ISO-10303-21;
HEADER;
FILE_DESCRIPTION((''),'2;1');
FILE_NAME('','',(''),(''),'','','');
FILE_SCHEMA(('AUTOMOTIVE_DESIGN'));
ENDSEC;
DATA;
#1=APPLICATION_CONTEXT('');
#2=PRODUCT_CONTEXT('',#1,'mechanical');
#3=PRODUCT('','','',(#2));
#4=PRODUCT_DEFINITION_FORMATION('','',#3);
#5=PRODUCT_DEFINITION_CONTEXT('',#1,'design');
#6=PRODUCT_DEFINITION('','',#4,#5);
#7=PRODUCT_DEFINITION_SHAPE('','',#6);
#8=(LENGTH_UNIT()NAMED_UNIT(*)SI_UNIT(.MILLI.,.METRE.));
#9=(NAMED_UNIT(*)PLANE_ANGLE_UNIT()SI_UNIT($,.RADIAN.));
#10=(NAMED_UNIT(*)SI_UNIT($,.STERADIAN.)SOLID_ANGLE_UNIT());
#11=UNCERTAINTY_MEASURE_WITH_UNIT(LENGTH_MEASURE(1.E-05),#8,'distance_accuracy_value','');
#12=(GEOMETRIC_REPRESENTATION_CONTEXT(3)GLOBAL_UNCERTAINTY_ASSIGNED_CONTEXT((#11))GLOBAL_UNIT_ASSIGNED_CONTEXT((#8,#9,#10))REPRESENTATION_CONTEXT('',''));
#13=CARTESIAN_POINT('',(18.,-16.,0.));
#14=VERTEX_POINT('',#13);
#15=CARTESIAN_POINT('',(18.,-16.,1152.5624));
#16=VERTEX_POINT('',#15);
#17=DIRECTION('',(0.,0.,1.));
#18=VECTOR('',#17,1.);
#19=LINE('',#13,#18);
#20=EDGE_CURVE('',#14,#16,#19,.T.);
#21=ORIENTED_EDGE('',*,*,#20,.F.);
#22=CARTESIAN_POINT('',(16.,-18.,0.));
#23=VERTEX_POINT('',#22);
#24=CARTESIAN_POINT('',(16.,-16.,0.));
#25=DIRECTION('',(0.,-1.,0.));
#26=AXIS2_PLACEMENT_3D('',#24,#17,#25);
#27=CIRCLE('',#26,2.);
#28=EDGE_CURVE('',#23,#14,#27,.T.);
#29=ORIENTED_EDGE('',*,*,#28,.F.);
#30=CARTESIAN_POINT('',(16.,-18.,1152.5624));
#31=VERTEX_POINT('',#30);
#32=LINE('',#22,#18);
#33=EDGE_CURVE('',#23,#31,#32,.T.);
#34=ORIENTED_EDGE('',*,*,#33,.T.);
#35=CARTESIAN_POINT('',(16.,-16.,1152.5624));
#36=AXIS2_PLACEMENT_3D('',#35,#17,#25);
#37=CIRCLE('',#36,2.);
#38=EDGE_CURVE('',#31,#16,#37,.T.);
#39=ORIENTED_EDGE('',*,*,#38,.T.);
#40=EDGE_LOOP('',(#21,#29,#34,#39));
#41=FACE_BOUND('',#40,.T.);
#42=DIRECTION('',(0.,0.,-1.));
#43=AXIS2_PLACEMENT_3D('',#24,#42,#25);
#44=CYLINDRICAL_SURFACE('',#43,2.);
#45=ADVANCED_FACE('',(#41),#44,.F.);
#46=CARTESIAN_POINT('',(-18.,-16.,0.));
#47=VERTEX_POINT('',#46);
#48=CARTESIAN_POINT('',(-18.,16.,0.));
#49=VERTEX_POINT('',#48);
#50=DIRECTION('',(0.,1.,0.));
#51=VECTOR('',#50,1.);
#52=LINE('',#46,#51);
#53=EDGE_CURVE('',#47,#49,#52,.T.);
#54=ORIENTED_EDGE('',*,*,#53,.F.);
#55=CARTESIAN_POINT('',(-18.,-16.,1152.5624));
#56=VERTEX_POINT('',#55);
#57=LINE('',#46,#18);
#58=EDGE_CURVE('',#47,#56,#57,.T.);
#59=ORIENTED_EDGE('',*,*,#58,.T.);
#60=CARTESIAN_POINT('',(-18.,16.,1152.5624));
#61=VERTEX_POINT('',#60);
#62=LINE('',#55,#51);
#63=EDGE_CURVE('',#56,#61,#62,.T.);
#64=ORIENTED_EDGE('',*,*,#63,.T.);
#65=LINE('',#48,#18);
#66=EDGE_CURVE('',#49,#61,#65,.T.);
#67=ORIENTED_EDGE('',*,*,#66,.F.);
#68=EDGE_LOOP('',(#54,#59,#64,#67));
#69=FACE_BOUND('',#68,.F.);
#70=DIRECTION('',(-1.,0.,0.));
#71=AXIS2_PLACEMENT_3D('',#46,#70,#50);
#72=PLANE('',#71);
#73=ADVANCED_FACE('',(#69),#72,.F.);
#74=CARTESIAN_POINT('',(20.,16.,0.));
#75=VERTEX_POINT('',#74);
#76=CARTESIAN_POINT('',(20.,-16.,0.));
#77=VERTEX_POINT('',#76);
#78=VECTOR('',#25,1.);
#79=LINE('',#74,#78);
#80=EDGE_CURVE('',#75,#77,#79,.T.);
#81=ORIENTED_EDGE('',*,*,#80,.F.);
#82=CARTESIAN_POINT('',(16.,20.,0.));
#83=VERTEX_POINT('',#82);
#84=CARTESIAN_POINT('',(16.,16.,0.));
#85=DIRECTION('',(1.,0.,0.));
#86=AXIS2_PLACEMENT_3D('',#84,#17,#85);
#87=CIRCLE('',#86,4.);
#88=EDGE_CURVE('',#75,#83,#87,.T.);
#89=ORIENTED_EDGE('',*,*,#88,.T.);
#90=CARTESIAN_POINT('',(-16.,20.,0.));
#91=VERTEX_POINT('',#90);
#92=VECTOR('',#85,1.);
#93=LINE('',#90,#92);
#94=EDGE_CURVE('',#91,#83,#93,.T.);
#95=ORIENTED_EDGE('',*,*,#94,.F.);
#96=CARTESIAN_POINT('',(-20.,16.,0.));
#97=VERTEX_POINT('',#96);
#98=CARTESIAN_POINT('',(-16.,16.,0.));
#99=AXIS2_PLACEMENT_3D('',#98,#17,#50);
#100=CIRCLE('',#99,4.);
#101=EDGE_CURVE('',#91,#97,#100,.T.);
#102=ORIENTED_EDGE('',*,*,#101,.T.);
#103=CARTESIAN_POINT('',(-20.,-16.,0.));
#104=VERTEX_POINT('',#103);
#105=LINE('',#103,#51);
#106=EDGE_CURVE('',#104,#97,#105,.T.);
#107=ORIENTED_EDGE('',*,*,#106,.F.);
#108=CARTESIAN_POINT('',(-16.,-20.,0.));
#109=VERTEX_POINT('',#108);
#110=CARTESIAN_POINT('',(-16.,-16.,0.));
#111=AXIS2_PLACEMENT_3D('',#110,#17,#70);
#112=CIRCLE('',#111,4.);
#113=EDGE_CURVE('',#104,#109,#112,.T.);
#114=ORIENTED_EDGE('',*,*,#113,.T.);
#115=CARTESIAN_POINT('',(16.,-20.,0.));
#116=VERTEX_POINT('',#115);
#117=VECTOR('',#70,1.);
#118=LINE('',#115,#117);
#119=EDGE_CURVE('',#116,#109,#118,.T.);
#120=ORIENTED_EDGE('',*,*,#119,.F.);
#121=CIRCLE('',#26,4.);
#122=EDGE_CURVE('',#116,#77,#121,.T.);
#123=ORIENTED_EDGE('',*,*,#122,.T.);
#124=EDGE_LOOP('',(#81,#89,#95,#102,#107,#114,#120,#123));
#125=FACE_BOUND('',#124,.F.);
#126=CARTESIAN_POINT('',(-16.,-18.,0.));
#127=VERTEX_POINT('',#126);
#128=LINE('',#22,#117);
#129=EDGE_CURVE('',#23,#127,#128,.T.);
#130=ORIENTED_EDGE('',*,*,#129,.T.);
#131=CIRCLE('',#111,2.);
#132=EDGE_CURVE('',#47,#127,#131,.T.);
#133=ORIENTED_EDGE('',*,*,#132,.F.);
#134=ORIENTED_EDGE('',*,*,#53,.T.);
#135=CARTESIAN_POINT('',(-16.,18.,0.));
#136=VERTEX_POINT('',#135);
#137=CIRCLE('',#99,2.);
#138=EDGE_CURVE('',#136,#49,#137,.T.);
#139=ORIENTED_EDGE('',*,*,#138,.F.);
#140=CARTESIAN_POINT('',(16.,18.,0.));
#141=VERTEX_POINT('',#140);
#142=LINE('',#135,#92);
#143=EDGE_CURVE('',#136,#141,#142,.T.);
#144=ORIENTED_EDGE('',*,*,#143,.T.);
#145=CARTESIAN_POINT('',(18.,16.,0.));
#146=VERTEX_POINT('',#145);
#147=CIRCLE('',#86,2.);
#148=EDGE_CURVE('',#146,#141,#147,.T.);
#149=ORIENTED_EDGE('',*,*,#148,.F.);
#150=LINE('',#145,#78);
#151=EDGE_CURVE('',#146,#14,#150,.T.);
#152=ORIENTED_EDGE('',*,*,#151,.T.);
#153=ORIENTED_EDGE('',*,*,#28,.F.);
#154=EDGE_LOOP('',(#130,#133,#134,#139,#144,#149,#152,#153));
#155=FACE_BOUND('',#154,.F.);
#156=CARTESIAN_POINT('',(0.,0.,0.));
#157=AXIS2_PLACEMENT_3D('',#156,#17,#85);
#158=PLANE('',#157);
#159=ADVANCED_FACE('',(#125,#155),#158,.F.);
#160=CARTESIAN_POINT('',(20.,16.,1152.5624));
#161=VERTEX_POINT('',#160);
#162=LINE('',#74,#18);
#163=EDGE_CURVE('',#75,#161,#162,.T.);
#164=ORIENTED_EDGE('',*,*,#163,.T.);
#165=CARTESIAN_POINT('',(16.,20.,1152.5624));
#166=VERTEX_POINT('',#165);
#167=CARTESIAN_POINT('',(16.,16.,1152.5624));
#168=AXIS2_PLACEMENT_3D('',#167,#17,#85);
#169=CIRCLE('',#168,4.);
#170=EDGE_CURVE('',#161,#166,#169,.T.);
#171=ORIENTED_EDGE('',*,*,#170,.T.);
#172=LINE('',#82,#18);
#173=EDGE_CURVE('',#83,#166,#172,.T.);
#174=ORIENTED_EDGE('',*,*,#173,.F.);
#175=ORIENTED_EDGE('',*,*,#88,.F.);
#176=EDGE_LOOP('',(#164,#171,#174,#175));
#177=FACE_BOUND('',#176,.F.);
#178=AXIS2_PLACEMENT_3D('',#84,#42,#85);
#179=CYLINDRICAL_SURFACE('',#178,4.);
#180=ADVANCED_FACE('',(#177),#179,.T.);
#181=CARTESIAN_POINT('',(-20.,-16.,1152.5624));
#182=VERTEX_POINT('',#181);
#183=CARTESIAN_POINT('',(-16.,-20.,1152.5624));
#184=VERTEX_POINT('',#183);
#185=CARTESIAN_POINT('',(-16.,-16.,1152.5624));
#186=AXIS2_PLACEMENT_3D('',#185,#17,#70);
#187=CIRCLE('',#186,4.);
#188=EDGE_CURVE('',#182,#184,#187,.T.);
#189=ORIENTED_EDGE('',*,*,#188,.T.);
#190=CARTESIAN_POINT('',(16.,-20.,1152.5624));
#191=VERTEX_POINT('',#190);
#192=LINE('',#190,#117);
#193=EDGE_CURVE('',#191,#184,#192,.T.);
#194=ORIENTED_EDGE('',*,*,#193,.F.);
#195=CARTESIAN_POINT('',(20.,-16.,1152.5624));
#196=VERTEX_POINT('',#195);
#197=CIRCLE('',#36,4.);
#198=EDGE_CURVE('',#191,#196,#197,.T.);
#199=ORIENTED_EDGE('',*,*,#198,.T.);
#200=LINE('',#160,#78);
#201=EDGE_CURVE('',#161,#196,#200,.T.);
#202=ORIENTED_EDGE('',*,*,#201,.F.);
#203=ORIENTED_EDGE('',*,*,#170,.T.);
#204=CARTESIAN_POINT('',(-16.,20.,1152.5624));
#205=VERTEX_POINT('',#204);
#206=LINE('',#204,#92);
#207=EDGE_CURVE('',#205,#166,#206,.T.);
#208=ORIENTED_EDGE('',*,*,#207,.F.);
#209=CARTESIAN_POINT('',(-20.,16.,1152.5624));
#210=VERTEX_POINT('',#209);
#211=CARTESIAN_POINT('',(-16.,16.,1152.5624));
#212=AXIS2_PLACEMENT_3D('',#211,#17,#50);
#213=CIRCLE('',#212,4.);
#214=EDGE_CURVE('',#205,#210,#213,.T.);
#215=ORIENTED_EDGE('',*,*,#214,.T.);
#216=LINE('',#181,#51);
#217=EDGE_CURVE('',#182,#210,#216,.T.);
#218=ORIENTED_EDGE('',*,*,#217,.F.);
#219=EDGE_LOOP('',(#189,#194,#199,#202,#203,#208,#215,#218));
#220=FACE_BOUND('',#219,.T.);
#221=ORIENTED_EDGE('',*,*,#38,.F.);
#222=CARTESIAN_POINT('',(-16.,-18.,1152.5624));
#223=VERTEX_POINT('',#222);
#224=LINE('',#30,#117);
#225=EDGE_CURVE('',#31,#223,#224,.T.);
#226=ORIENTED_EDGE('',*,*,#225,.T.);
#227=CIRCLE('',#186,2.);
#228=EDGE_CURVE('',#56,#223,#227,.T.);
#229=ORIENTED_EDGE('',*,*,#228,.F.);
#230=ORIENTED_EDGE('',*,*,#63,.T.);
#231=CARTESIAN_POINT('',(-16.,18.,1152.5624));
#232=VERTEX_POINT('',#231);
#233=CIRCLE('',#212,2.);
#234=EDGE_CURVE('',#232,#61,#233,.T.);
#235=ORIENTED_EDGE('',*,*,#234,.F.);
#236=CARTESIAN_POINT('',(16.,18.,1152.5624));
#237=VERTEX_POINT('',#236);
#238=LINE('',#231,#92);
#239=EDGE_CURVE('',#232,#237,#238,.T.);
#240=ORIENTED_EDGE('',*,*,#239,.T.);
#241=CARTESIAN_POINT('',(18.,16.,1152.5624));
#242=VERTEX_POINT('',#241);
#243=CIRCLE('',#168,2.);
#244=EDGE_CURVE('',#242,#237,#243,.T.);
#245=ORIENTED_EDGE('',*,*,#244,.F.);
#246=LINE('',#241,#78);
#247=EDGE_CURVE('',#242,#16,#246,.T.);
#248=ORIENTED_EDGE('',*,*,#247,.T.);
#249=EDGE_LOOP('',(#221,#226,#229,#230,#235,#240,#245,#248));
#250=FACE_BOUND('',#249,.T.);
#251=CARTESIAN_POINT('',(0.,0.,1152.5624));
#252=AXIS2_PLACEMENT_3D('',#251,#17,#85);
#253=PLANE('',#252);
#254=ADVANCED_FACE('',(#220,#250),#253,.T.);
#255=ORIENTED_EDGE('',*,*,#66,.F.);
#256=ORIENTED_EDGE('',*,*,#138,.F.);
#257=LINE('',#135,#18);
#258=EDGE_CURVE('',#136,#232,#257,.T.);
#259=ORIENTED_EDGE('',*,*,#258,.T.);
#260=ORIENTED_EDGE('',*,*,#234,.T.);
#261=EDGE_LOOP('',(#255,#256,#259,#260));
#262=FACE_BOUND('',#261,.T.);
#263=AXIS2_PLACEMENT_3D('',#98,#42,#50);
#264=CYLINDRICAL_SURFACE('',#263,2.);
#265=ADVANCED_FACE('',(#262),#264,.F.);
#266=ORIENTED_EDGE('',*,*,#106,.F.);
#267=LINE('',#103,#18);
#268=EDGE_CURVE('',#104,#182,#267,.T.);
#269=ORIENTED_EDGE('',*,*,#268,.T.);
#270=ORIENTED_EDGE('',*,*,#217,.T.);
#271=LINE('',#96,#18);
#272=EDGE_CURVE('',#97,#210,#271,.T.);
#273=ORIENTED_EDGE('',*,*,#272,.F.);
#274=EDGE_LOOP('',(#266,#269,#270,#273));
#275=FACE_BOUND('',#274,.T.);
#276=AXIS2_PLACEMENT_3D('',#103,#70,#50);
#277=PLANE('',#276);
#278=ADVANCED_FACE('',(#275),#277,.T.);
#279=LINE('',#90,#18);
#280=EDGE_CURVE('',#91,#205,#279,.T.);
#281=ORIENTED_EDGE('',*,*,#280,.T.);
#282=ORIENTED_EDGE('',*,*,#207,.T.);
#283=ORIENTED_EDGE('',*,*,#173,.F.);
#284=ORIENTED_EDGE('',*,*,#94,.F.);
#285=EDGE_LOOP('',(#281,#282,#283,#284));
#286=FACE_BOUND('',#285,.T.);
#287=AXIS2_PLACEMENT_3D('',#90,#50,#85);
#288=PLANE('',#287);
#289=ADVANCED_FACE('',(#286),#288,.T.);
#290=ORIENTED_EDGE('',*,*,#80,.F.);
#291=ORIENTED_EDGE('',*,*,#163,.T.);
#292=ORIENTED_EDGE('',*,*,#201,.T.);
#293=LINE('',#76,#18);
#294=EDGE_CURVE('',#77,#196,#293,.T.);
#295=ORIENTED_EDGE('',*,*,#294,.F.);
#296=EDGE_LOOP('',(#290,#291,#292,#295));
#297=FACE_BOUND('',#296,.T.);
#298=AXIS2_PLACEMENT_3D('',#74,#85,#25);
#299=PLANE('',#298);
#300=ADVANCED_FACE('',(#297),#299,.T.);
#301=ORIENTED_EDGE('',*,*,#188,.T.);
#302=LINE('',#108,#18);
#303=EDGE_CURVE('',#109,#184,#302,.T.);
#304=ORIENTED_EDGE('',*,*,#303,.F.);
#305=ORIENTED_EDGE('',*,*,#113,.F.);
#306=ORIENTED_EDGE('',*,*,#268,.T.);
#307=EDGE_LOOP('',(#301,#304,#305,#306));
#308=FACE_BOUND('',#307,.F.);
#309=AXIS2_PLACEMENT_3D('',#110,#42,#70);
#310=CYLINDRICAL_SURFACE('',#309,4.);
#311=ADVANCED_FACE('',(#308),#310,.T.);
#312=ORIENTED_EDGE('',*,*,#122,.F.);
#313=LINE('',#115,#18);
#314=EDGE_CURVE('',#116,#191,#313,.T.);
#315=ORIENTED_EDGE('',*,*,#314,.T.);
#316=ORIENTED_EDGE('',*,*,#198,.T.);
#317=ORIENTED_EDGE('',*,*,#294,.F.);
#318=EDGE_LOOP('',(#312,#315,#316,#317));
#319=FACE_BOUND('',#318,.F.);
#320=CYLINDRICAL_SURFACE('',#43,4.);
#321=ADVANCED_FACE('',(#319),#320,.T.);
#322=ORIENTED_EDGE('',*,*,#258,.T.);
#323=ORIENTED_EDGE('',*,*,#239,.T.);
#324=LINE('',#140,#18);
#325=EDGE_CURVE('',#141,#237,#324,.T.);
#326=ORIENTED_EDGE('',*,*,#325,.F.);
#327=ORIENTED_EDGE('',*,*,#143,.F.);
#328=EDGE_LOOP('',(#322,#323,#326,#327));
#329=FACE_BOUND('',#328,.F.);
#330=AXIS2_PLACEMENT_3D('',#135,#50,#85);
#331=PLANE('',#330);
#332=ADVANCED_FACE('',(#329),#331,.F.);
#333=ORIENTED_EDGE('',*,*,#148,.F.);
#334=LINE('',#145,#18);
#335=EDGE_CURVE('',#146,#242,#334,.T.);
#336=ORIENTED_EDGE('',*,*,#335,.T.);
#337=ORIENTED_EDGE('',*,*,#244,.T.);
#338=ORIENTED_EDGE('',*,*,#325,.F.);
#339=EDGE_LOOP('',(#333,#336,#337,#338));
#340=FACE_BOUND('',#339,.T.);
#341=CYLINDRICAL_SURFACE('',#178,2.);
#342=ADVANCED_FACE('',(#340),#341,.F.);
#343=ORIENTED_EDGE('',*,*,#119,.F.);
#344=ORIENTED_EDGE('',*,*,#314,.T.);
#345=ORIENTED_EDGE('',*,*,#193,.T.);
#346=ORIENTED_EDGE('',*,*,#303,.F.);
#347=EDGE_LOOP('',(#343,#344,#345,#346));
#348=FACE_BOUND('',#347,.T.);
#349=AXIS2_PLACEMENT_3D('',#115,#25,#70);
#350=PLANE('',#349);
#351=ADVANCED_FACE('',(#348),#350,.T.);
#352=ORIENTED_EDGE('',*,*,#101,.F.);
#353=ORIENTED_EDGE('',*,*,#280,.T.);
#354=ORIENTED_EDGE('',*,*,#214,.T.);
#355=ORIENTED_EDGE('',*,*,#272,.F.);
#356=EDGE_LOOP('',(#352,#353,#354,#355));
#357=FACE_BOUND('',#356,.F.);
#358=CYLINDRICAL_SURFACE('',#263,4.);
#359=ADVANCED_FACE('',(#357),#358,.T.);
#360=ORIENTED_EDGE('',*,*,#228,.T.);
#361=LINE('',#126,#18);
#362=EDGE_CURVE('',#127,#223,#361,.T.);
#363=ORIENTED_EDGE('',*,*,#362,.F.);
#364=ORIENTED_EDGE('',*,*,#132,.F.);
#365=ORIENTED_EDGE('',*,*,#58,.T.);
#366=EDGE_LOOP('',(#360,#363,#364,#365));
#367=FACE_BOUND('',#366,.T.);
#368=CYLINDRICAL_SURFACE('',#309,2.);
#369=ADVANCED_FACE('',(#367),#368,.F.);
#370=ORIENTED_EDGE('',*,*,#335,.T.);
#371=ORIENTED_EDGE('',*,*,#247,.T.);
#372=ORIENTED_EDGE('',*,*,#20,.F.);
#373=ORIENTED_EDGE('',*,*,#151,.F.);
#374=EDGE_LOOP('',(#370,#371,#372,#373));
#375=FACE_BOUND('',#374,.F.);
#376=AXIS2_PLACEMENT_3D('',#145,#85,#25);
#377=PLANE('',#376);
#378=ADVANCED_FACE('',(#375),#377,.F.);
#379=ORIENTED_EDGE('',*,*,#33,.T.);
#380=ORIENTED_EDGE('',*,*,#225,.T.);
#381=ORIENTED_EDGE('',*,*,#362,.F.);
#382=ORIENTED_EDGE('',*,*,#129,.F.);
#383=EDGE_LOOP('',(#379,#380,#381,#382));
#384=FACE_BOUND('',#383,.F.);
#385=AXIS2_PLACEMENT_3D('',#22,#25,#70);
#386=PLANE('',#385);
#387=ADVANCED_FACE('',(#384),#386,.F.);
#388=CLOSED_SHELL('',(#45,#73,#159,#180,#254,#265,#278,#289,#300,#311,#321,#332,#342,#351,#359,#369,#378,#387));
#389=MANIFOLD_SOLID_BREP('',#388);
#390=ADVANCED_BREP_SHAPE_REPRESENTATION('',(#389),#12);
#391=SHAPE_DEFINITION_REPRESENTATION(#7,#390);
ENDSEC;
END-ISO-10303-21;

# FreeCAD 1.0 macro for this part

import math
import FreeCAD as App
import Part
import Sketcher

doc = App.newDocument("Part")
body = doc.addObject("PartDesign::Body", "Body")

sketch1 = doc.addObject("Sketcher::SketchObject", "Sketch")
body.addObject(sketch1)
sketch1.AttachmentSupport = (doc.XY_Plane, [""])
sketch1.MapMode = "FlatFace"
sketch1.addGeometry([
    Part.LineSegment(App.Vector(-20, 16, 0), App.Vector(-20, -16, 0)),
    Part.ArcOfCircle(Part.Circle(App.Vector(-16, -16, 0), App.Vector(0, 0, 1), 4), math.radians(180), math.radians(270)),
    Part.LineSegment(App.Vector(-16, -20, 0), App.Vector(16, -20, 0)),
    Part.ArcOfCircle(Part.Circle(App.Vector(16, -16, 0), App.Vector(0, 0, 1), 4), math.radians(-90), math.radians(0)),
    Part.LineSegment(App.Vector(20, -16, 0), App.Vector(20, 16, 0)),
    Part.ArcOfCircle(Part.Circle(App.Vector(16, 16, 0), App.Vector(0, 0, 1), 4), math.radians(0), math.radians(90)),
    Part.LineSegment(App.Vector(16, 20, 0), App.Vector(-16, 20, 0)),
    Part.ArcOfCircle(Part.Circle(App.Vector(-16, 16, 0), App.Vector(0, 0, 1), 4), math.radians(90), math.radians(180)),
    Part.ArcOfCircle(Part.Circle(App.Vector(-16, 16, 0), App.Vector(0, 0, 1), 2), math.radians(90), math.radians(180)),
    Part.LineSegment(App.Vector(-16, 18, 0), App.Vector(16, 18, 0)),
    Part.ArcOfCircle(Part.Circle(App.Vector(16, 16, 0), App.Vector(0, 0, 1), 2), math.radians(0), math.radians(90)),
    Part.LineSegment(App.Vector(18, 16, 0), App.Vector(18, -16, 0)),
    Part.ArcOfCircle(Part.Circle(App.Vector(16, -16, 0), App.Vector(0, 0, 1), 2), math.radians(-90), math.radians(0)),
    Part.LineSegment(App.Vector(16, -18, 0), App.Vector(-16, -18, 0)),
    Part.ArcOfCircle(Part.Circle(App.Vector(-16, -16, 0), App.Vector(0, 0, 1), 2), math.radians(180), math.radians(270)),
    Part.LineSegment(App.Vector(-18, -16, 0), App.Vector(-18, 16, 0)),
], False)
sketch1.addConstraint([
    Sketcher.Constraint("Tangent", 0, 2, 1, 1),
    Sketcher.Constraint("Tangent", 1, 2, 2, 1),
    Sketcher.Constraint("Tangent", 2, 2, 3, 1),
    Sketcher.Constraint("Tangent", 3, 2, 4, 1),
    Sketcher.Constraint("Tangent", 4, 2, 5, 1),
    Sketcher.Constraint("Tangent", 5, 2, 6, 1),
    Sketcher.Constraint("Tangent", 6, 2, 7, 1),
    Sketcher.Constraint("Tangent", 7, 2, 0, 1),
    Sketcher.Constraint("Tangent", 8, 1, 9, 1),
    Sketcher.Constraint("Tangent", 9, 2, 10, 2),
    Sketcher.Constraint("Tangent", 10, 1, 11, 1),
    Sketcher.Constraint("Tangent", 11, 2, 12, 2),
    Sketcher.Constraint("Tangent", 12, 1, 13, 1),
    Sketcher.Constraint("Tangent", 13, 2, 14, 2),
    Sketcher.Constraint("Tangent", 14, 1, 15, 1),
    Sketcher.Constraint("Tangent", 15, 2, 8, 2),
    Sketcher.Constraint("Vertical", 0),
    Sketcher.Constraint("Horizontal", 2),
    Sketcher.Constraint("Vertical", 4),
    Sketcher.Constraint("Horizontal", 6),
    Sketcher.Constraint("Horizontal", 9),
    Sketcher.Constraint("Vertical", 11),
    Sketcher.Constraint("Horizontal", 13),
    Sketcher.Constraint("Vertical", 15),
    Sketcher.Constraint("Coincident", 8, 3, 7, 3),
    Sketcher.Constraint("Coincident", 10, 3, 5, 3),
    Sketcher.Constraint("Coincident", 12, 3, 3, 3),
    Sketcher.Constraint("Equal", 1, 3),
    Sketcher.Constraint("Equal", 3, 5),
    Sketcher.Constraint("Equal", 5, 7),
    Sketcher.Constraint("Equal", 12, 14),
    Sketcher.Constraint("Symmetric", 1, 3, 5, 3, -1, 1),
    Sketcher.Constraint("Equal", 13, 0),
    Sketcher.Constraint("Radius", 1, 4.0),
    Sketcher.Constraint("Radius", 8, 2.0),
    Sketcher.Constraint("DistanceX", 0, 2, -1, 1, 20.0),
])
pad1 = doc.addObject("PartDesign::Pad", "Pad")
body.addObject(pad1)
pad1.Profile = sketch1
pad1.Length = 1152.5624

doc.recompute()
